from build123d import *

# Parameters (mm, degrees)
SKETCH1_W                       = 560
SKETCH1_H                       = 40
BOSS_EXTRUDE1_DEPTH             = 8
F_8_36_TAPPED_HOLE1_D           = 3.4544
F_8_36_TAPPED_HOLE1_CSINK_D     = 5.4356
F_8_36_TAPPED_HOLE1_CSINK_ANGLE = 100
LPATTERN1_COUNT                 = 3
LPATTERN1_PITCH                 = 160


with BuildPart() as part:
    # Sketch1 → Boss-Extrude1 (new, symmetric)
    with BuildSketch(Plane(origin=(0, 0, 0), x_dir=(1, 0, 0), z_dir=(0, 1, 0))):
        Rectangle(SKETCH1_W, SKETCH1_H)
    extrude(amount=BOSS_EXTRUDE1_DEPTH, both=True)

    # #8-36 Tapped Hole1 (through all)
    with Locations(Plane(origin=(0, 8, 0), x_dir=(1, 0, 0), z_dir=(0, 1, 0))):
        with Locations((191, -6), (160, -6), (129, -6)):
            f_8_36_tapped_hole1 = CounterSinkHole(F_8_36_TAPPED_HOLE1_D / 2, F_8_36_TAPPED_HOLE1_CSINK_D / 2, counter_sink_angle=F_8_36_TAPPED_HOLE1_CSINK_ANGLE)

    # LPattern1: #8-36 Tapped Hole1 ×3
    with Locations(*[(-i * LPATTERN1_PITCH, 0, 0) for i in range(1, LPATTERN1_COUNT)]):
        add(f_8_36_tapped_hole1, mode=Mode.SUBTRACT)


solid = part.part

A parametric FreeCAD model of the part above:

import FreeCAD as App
import Part
import Sketcher

V = App.Vector


def add_polygon(sketch, points):
    """Adds a closed chain of lines whose ends are joined by coincident constraints."""
    first, n = sketch.GeometryCount, len(points)
    for a, b in zip(points, points[1:] + points[:1]):
        sketch.addGeometry(Part.LineSegment(App.Vector(*a, 0), App.Vector(*b, 0)), False)
    for i in range(n):
        sketch.addConstraint(Sketcher.Constraint("Coincident", first + i, 2, first + (i + 1) % n, 1))

doc = App.newDocument("Part")
body = doc.addObject("PartDesign::Body", "Body")

# Sketch on XZ plane
sketch1 = doc.addObject("Sketcher::SketchObject", "Sketch")
body.addObject(sketch1)
sketch1.AttachmentSupport = (doc.XZ_Plane, [""])
sketch1.MapMode = "FlatFace"
add_polygon(sketch1, [(-280, -20), (-280, 20), (280, 20), (280, -20)])  # lines 0-3
sketch1.addConstraint([
    Sketcher.Constraint("Vertical", 0),
    Sketcher.Constraint("Horizontal", 1),
    Sketcher.Constraint("Vertical", 2),
    Sketcher.Constraint("Horizontal", 3),
    Sketcher.Constraint("Symmetric", 0, 2, 2, 2, -1, 1),
    Sketcher.Constraint("DistanceX", 1, 1, 1, 2, 560.0),
    Sketcher.Constraint("DistanceY", 0, 1, 0, 2, 40.0),
])
pad1 = doc.addObject("PartDesign::Pad", "Pad")
body.addObject(pad1)
pad1.Profile = sketch1
pad1.Length = 16
pad1.Midplane = True

# Sketch on XZ plane
sketch2 = doc.addObject("Sketcher::SketchObject", "Sketch001")
body.addObject(sketch2)
sketch2.AttachmentSupport = (doc.XZ_Plane, [""])
sketch2.MapMode = "FlatFace"
sketch2.AttachmentOffset = App.Placement(V(0, 0, -8), App.Rotation())
sketch2.addGeometry([
    Part.Circle(V(191, 6, 0), V(0, 0, 1), 1.7272),
    Part.Circle(V(160, 6, 0), V(0, 0, 1), 1.7272),
    Part.Circle(V(129, 6, 0), V(0, 0, 1), 1.7272),
], False)
sketch2.addConstraint([
    Sketcher.Constraint("Equal", 0, 1),
    Sketcher.Constraint("Equal", 1, 2),
    Sketcher.Constraint("Horizontal", 0, 3, 1, 3),
    Sketcher.Constraint("Horizontal", 1, 3, 2, 3),
    Sketcher.Constraint("DistanceX", -1, 1, 0, 3, 191.0),
    Sketcher.Constraint("DistanceY", -1, 1, 0, 3, 6.0),
    Sketcher.Constraint("DistanceX", -1, 1, 1, 3, 160.0),
    Sketcher.Constraint("DistanceX", -1, 1, 2, 3, 129.0),
    Sketcher.Constraint("Diameter", 0, 3.4544),
])
doc.recompute()
hole = doc.addObject("PartDesign::Hole", "Hole")
body.addObject(hole)
hole.Profile = sketch2
hole.ThreadType = "None"
hole.Diameter = 3.4544
hole.DepthType = "ThroughAll"
hole.HoleCutType = "Countersink"
hole.HoleCutDiameter = 5.4356
hole.HoleCutCountersinkAngle = 100
hole.Reversed = True
doc.recompute()

linearpattern = doc.addObject("PartDesign::LinearPattern", "LinearPattern")
body.addObject(linearpattern)
linearpattern.Originals = [hole]
linearpattern.Direction = (doc.X_Axis, [""])
linearpattern.Mode = "offset"
linearpattern.Offset = 160
linearpattern.Occurrences = 3
linearpattern.Reversed = True
body.Tip = linearpattern

doc.recompute()
